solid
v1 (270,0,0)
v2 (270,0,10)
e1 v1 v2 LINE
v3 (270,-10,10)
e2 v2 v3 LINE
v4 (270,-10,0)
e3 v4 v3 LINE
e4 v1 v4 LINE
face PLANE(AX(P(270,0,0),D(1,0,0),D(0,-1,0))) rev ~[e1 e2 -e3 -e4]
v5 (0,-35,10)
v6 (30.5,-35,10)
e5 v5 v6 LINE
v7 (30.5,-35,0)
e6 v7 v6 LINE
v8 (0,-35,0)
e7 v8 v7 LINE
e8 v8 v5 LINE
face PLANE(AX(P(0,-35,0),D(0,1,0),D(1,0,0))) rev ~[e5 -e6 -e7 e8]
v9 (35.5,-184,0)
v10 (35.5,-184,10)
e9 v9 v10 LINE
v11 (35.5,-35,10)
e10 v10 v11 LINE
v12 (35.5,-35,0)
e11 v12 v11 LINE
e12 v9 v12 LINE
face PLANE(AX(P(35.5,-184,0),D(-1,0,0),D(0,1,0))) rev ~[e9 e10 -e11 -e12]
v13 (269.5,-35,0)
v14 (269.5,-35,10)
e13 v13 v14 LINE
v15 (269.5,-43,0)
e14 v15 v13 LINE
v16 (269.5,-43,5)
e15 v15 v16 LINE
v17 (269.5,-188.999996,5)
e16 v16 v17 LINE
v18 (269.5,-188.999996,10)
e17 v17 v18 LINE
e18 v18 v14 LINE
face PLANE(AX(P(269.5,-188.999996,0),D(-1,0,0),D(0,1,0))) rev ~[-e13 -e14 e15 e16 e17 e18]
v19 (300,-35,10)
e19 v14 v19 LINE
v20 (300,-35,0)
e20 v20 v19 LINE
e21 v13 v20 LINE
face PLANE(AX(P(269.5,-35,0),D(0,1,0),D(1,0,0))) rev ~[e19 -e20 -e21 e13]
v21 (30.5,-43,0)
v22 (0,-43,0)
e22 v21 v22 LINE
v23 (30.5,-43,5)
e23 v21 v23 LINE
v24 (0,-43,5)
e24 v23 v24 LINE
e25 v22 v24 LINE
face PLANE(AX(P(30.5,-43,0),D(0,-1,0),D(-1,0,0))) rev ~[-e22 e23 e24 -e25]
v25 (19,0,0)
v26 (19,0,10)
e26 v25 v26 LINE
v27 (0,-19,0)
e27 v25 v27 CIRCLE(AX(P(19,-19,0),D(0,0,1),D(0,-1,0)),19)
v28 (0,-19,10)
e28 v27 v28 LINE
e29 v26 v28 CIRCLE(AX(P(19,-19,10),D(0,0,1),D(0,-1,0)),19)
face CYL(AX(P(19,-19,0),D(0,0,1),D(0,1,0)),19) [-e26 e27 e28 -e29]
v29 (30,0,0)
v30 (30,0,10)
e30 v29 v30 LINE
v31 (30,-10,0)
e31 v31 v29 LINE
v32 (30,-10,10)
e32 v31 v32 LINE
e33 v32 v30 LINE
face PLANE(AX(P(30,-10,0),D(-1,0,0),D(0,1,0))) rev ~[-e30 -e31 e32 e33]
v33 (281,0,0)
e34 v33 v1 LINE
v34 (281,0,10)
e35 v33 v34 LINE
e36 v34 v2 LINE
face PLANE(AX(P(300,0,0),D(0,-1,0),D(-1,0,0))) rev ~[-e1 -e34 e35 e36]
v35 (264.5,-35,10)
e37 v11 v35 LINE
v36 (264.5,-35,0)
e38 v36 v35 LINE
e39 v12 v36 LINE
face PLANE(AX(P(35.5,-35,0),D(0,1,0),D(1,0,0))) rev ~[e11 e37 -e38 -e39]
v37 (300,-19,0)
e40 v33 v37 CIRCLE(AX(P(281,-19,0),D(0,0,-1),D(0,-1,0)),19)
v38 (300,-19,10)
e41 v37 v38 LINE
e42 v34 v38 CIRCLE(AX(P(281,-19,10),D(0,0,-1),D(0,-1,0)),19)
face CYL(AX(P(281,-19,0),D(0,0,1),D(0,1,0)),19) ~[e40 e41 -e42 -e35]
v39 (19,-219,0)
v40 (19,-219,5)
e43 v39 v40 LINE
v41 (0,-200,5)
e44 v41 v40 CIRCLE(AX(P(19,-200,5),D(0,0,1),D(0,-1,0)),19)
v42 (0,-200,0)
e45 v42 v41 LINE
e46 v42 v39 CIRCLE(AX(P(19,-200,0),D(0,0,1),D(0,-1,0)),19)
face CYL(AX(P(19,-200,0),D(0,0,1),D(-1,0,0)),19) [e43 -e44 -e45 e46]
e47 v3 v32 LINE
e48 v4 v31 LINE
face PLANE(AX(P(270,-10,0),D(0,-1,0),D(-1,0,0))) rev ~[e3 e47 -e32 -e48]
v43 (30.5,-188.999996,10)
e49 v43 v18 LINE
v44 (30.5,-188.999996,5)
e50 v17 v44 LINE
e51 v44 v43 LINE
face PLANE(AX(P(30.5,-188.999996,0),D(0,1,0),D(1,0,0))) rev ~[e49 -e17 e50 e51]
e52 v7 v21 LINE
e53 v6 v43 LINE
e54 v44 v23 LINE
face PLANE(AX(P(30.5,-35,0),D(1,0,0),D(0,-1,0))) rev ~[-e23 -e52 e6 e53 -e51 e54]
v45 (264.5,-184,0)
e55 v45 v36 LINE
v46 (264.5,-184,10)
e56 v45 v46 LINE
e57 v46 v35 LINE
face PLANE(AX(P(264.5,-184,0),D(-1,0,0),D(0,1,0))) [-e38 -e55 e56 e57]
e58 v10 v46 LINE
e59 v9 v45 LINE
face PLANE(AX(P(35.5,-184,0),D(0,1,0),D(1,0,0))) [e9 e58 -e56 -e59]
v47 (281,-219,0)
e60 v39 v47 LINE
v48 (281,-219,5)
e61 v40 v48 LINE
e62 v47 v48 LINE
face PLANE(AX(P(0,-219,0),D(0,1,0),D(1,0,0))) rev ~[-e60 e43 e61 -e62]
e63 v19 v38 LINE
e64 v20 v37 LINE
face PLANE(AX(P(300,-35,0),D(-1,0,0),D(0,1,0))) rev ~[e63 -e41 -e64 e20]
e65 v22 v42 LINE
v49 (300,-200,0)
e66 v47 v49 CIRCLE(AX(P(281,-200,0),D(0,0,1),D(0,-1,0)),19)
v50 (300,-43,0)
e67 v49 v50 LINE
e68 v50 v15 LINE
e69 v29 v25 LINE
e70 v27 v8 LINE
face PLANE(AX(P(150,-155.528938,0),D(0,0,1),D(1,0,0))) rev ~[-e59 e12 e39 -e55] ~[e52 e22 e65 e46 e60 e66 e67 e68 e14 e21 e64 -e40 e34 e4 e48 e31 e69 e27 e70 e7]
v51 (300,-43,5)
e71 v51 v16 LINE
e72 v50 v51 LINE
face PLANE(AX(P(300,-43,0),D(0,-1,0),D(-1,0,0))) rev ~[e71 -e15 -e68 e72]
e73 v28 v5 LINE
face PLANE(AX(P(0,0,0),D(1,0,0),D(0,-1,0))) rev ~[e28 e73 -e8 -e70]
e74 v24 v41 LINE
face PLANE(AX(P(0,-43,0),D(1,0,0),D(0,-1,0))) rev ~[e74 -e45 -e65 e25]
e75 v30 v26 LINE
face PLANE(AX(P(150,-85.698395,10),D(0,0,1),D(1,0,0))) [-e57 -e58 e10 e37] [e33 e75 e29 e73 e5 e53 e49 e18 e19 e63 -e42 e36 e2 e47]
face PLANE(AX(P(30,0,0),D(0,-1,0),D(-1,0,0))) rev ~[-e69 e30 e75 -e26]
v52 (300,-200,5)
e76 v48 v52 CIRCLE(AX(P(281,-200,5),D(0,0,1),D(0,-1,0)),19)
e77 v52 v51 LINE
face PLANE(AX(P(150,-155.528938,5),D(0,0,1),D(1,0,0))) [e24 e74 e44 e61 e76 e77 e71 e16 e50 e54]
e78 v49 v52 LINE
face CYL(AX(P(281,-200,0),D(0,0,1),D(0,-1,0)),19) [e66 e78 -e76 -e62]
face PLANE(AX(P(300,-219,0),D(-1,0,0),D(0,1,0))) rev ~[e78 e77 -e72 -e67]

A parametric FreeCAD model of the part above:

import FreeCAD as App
import Part
import Sketcher

V = App.Vector
Q = App.Units.Quantity


def edges_at(feature, points):
    """Names of the edges that pass closest to the given points."""
    edges = feature.Shape.Edges
    near = lambda p: min(range(len(edges)), key=lambda i: edges[i].distToShape(Part.Vertex(*p))[0])
    return sorted({f"Edge{near(p) + 1}" for p in points})


def add_polygon(sketch, points):
    """Adds a closed chain of lines whose ends are joined by coincident constraints."""
    first, n = sketch.GeometryCount, len(points)
    for a, b in zip(points, points[1:] + points[:1]):
        sketch.addGeometry(Part.LineSegment(App.Vector(*a, 0), App.Vector(*b, 0)), False)
    for i in range(n):
        sketch.addConstraint(Sketcher.Constraint("Coincident", first + i, 2, first + (i + 1) % n, 1))

doc = App.newDocument("Part")
body = doc.addObject("PartDesign::Body", "Body")

sketch1 = body.newObject("Sketcher::SketchObject", "Sketch")
sketch1.AttachmentSupport = (doc.getObject("XY_Plane"), [""])
sketch1.MapMode = "FlatFace"
add_polygon(sketch1, [(30, 0), (0, 0), (0, -35), (30.5, -35), (30.5, -188.999996), (269.5, -188.999996), (269.5, -35), (300, -35), (300, 0), (270, 0), (270, -10), (30, -10)])
add_polygon(sketch1, [(264.5, -184), (35.5, -184), (35.5, -35), (264.5, -35)])
sketch1.addConstraint(Sketcher.Constraint("Horizontal", 0))
sketch1.addConstraint(Sketcher.Constraint("Vertical", 1))
sketch1.addConstraint(Sketcher.Constraint("Horizontal", 2))
sketch1.addConstraint(Sketcher.Constraint("Vertical", 3))
sketch1.addConstraint(Sketcher.Constraint("Horizontal", 4))
sketch1.addConstraint(Sketcher.Constraint("Vertical", 5))
sketch1.addConstraint(Sketcher.Constraint("Horizontal", 6))
sketch1.addConstraint(Sketcher.Constraint("Vertical", 7))
sketch1.addConstraint(Sketcher.Constraint("Horizontal", 8))
sketch1.addConstraint(Sketcher.Constraint("Vertical", 9))
sketch1.addConstraint(Sketcher.Constraint("Horizontal", 10))
sketch1.addConstraint(Sketcher.Constraint("Vertical", 11))
sketch1.addConstraint(Sketcher.Constraint("Horizontal", 12))
sketch1.addConstraint(Sketcher.Constraint("Vertical", 13))
sketch1.addConstraint(Sketcher.Constraint("Horizontal", 14))
sketch1.addConstraint(Sketcher.Constraint("Vertical", 15))
sketch1.addConstraint(Sketcher.Constraint("Coincident", 0, 2, -1, 1))
sketch1.addConstraint(Sketcher.Constraint("PointOnObject", 7, 2, -1))
sketch1.addConstraint(Sketcher.Constraint("Horizontal", 2, 2, 5, 2))
sketch1.addConstraint(Sketcher.Constraint("Horizontal", 6, 2, 13, 2))
sketch1.addConstraint(Sketcher.Constraint("Equal", 2, 6))
sketch1.addConstraint(Sketcher.Constraint("Equal", 0, 8))
sketch1.addConstraint(Sketcher.Constraint("DistanceX", 0, 2, 0, 1, Q("30 mm")))
sketch1.addConstraint(Sketcher.Constraint("DistanceX", 4, 1, 4, 2, Q("239 mm")))
sketch1.addConstraint(Sketcher.Constraint("DistanceX", 10, 2, 10, 1, Q("240 mm")))
sketch1.addConstraint(Sketcher.Constraint("DistanceX", 12, 2, 12, 1, Q("229 mm")))
sketch1.addConstraint(Sketcher.Constraint("DistanceY", 1, 2, 1, 1, Q("35 mm")))
sketch1.addConstraint(Sketcher.Constraint("DistanceY", 9, 2, 9, 1, Q("10 mm")))
sketch1.addConstraint(Sketcher.Constraint("DistanceY", 13, 1, 13, 2, Q("149 mm")))
sketch1.addConstraint(Sketcher.Constraint("DistanceX", 3, 2, 12, 2, Q("5 mm")))
sketch1.addConstraint(Sketcher.Constraint("DistanceY", 3, 2, 3, 1, Q("153.999996 mm")))
pad1 = body.newObject("PartDesign::Pad", "Pad")
pad1.Profile = sketch1
pad1.Length = 10

sketch2 = body.newObject("Sketcher::SketchObject", "Sketch001")
sketch2.AttachmentSupport = (doc.getObject("XY_Plane"), [""])
sketch2.MapMode = "FlatFace"
add_polygon(sketch2, [(30.5, -43), (0, -43), (0, -219), (300, -219), (300, -43), (269.5, -43), (269.5, -188.999996), (30.5, -188.999996)])
sketch2.addConstraint(Sketcher.Constraint("Horizontal", 0))
sketch2.addConstraint(Sketcher.Constraint("Vertical", 1))
sketch2.addConstraint(Sketcher.Constraint("Horizontal", 2))
sketch2.addConstraint(Sketcher.Constraint("Vertical", 3))
sketch2.addConstraint(Sketcher.Constraint("Horizontal", 4))
sketch2.addConstraint(Sketcher.Constraint("Vertical", 5))
sketch2.addConstraint(Sketcher.Constraint("Horizontal", 6))
sketch2.addConstraint(Sketcher.Constraint("Vertical", 7))
sketch2.addConstraint(Sketcher.Constraint("PointOnObject", 0, 2, -2))
sketch2.addConstraint(Sketcher.Constraint("Horizontal", 0, 2, 3, 2))
sketch2.addConstraint(Sketcher.Constraint("Equal", 0, 4))
sketch2.addConstraint(Sketcher.Constraint("DistanceX", 2, 1, 2, 2, Q("300 mm")))
sketch2.addConstraint(Sketcher.Constraint("DistanceX", 6, 2, 6, 1, Q("239 mm")))
sketch2.addConstraint(Sketcher.Constraint("DistanceY", 1, 2, 1, 1, Q("176 mm")))
sketch2.addConstraint(Sketcher.Constraint("DistanceY", 0, 2, -1, 1, Q("43 mm")))
sketch2.addConstraint(Sketcher.Constraint("DistanceY", 5, 2, 5, 1, Q("145.999996 mm")))
pad2 = body.newObject("PartDesign::Pad", "Pad001")
pad2.Profile = sketch2
pad2.Length = 5
doc.recompute()

fillet = body.newObject("PartDesign::Fillet", "Fillet")
fillet.Base = (pad2, edges_at(pad2, [
    (0, 0, 5),
    (300, 0, 5),
    (300, -219, 2.5),
    (0, -219, 2.5),
]))
fillet.Radius = 19

doc.recompute()
